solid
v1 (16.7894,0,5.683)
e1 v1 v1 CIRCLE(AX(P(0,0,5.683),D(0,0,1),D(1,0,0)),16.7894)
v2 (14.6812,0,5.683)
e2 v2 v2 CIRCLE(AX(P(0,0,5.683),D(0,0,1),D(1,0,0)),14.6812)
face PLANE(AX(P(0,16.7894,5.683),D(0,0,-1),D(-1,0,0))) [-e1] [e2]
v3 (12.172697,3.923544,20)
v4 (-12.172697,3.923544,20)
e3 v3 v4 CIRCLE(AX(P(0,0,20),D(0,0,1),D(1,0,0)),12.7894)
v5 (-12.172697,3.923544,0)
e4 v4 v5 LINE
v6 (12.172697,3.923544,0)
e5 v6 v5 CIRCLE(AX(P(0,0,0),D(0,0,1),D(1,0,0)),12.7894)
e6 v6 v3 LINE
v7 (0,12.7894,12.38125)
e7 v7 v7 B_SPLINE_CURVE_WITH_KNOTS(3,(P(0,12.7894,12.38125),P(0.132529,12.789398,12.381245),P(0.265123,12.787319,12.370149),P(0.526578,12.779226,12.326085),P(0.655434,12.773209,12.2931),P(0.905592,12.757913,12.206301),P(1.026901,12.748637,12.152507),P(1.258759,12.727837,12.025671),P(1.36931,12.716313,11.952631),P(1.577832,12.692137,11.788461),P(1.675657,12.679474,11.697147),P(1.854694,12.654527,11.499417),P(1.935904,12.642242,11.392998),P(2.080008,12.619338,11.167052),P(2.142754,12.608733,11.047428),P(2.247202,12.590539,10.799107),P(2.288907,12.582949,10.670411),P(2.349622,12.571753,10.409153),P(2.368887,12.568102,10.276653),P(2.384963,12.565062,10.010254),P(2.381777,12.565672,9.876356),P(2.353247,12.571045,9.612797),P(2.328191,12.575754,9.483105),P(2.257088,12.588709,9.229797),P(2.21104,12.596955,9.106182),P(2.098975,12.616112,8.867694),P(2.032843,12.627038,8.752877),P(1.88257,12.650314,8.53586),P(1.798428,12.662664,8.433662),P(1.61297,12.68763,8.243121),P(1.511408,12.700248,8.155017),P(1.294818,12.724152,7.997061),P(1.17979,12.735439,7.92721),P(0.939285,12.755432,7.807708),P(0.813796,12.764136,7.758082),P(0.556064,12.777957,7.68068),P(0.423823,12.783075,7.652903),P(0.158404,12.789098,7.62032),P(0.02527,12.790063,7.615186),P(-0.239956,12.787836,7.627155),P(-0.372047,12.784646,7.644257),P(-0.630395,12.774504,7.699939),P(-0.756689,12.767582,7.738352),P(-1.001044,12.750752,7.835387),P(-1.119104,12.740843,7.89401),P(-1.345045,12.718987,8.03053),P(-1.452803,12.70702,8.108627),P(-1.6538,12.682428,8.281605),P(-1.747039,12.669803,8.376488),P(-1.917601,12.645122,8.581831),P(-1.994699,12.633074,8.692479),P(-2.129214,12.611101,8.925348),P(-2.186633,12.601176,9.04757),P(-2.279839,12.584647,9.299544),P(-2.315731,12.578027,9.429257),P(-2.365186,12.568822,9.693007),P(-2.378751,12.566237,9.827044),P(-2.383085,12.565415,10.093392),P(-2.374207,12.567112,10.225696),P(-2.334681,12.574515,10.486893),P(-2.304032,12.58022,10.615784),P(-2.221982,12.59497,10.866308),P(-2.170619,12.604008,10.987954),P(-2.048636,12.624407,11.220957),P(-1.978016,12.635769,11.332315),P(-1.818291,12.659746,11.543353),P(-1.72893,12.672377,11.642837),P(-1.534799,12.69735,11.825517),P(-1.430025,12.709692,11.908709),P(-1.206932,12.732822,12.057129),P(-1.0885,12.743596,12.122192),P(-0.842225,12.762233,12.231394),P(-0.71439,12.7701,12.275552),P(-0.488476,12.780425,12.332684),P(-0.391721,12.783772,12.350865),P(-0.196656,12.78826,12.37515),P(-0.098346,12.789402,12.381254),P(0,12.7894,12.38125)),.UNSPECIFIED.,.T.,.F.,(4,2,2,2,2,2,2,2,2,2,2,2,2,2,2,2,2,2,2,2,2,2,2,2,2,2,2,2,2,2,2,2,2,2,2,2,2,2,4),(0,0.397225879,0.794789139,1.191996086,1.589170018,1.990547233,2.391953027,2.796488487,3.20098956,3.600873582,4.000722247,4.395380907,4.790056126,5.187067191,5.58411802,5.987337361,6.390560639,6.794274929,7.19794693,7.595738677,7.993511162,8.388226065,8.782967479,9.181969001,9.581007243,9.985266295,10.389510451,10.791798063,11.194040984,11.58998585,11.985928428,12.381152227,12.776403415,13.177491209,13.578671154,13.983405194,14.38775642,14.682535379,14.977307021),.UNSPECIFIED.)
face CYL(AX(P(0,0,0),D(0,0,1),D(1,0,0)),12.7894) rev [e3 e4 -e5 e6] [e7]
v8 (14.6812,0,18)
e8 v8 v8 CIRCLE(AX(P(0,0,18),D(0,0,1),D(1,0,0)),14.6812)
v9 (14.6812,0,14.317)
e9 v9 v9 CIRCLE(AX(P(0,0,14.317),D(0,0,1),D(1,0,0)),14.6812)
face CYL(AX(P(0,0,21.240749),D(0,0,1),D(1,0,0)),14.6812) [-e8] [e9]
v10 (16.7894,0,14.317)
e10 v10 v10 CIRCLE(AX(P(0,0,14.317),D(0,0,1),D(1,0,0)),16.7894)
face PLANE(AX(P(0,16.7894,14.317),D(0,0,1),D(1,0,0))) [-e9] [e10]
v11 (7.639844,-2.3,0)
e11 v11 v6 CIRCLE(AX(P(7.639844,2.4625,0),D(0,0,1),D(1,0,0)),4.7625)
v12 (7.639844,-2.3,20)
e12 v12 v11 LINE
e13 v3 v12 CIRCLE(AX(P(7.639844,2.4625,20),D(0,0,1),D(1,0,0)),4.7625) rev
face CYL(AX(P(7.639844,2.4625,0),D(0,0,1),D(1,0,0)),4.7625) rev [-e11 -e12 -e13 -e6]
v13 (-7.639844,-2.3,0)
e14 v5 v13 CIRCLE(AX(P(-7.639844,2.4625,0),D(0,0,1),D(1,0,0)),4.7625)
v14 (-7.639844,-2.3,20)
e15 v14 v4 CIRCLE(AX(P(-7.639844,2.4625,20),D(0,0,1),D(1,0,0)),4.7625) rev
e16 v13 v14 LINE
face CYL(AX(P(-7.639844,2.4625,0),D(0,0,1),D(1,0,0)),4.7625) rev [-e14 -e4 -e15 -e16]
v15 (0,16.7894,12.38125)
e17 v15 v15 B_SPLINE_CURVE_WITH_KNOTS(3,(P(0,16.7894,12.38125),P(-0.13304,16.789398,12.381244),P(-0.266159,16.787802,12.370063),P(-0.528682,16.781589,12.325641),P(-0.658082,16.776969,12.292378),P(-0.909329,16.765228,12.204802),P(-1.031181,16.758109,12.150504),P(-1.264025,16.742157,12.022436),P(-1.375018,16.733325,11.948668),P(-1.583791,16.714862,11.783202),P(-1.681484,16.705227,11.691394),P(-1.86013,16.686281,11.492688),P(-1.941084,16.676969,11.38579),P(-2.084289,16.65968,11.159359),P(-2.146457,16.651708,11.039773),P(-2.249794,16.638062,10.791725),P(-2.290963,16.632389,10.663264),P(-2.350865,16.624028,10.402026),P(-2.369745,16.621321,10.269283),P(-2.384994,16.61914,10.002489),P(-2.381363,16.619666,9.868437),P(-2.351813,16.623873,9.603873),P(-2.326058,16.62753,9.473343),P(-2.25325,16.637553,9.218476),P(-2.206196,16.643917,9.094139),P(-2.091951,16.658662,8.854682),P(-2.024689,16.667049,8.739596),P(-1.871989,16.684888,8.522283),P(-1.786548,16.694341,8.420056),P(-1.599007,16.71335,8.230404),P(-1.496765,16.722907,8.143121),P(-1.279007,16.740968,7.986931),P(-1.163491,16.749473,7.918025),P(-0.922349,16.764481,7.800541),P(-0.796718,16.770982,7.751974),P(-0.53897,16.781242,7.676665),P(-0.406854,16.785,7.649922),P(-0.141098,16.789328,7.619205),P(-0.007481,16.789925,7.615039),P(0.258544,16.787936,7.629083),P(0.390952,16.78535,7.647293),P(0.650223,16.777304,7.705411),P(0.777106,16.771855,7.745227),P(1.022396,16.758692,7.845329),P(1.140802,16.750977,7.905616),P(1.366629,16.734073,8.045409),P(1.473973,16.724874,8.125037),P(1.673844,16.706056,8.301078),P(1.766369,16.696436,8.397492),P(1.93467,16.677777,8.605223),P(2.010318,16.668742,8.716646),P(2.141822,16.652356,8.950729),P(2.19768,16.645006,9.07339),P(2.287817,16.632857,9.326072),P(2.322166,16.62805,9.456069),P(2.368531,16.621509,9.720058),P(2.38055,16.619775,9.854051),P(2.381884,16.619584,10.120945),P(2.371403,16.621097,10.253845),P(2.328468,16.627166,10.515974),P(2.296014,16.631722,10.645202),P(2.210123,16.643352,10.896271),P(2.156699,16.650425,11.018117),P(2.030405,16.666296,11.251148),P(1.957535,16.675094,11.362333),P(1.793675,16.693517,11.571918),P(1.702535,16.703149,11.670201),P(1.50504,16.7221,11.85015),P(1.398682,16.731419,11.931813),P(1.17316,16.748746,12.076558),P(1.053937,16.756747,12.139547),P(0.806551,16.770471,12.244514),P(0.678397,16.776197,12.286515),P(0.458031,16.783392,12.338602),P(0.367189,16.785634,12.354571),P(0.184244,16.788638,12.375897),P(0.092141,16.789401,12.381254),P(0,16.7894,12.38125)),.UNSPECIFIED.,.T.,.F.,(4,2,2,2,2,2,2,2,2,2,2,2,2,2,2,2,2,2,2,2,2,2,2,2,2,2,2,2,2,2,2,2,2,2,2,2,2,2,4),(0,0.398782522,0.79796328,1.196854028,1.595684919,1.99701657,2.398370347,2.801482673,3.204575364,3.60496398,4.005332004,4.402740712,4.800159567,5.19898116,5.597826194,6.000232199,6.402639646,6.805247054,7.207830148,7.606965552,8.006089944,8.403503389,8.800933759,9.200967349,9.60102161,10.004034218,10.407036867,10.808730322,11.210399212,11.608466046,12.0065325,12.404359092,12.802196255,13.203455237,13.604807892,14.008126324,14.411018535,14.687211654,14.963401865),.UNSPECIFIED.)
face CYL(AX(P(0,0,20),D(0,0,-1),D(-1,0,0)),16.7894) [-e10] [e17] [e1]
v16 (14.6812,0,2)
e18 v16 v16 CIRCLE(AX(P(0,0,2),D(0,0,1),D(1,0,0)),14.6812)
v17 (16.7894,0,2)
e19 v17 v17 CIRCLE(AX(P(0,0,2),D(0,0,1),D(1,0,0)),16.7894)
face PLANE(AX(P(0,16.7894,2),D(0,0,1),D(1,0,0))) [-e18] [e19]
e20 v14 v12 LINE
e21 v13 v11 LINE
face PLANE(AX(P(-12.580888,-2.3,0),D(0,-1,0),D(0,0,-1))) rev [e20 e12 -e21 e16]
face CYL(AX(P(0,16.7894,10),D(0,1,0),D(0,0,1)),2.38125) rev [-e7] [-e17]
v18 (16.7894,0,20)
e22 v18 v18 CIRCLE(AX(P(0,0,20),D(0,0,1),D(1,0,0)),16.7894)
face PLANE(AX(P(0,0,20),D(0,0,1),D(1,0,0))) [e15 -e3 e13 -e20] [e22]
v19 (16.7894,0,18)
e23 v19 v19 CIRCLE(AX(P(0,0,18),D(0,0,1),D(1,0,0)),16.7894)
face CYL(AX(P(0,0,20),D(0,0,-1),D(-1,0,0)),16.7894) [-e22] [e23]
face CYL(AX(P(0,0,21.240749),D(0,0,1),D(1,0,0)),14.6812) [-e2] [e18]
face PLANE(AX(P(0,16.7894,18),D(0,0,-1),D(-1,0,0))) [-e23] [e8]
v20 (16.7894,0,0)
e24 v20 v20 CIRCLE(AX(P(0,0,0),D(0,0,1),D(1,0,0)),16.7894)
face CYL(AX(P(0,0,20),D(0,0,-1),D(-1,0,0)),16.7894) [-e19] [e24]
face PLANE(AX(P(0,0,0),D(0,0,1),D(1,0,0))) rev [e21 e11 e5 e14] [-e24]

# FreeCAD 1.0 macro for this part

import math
import FreeCAD as App
import Part
import Sketcher
from FreeCAD import Vector
Q = App.Units.Quantity


def edges_at(feature, points):
    """Names of the edges that pass closest to the given points."""
    edges = feature.Shape.Edges
    near = lambda p: min(range(len(edges)), key=lambda i: edges[i].distToShape(Part.Vertex(*p))[0])
    return sorted({f"Edge{near(p) + 1}" for p in points})

doc = App.newDocument("Part")
params = doc.addObject("Spreadsheet::Sheet", "Params")
for row, (alias, value) in enumerate([
    ("sketch1_diameter", "1.322 in"),
    ("pad1_length", "20 mm"),
    ("sketch2_width", "0.083 in"),
    ("sketch2_height", "0.145 in"),
    ("groove_angle", "360 deg"),
    ("fillet_radius", "0.1875 in"),
    ("sketch4_diameter", "0.1875 in"),
    ("hole_diameter", "0.1875 in"),
    ("hole_depth", "11.5437 mm"),
], start=1):
    params.set(f"A{row}", alias)
    params.set(f"B{row}", "=" + value)
    params.setAlias(f"B{row}", alias)

body = doc.addObject("PartDesign::Body", "Body")

# Sketch on XY plane
sketch1 = body.newObject("Sketcher::SketchObject", "Sketch")
sketch1.AttachmentSupport = (doc.getObject("XY_Plane"), [""])
sketch1.MapMode = "FlatFace"
sketch1.addGeometry(Part.Circle(Vector(0, 0, 0), Vector(0, 0, 1), 17), False)
sketch1.addConstraint([
    Sketcher.Constraint("Coincident", 0, 3, -1, 1),
    Sketcher.Constraint("Diameter", 0, Q("1.322 in")),
])
sketch1.setExpression("Constraints[1]", "Params.sketch1_diameter")
pad1 = body.newObject("PartDesign::Pad", "Pad")
pad1.Profile = sketch1
pad1.setExpression("Length", "Params.pad1_length")

# Sketch on YZ plane
sketch2 = body.newObject("Sketcher::SketchObject", "Sketch001")
sketch2.AttachmentSupport = (doc.getObject("YZ_Plane"), [""])
sketch2.MapMode = "FlatFace"
sketch2.addGeometry([
    Part.LineSegment(Vector(16.8, 18, 0), Vector(14.7, 18, 0)),  # 0
    Part.LineSegment(Vector(14.7, 18, 0), Vector(14.7, 14.3, 0)),  # 1
    Part.LineSegment(Vector(14.7, 14.3, 0), Vector(16.8, 14.3, 0)),  # 2
    Part.LineSegment(Vector(16.8, 14.3, 0), Vector(16.8, 18, 0)),  # 3
    Part.LineSegment(Vector(16.8, 5.7, 0), Vector(14.7, 5.7, 0)),  # 4
    Part.LineSegment(Vector(14.7, 5.7, 0), Vector(14.7, 2, 0)),  # 5
    Part.LineSegment(Vector(14.7, 2, 0), Vector(16.8, 2, 0)),  # 6
    Part.LineSegment(Vector(16.8, 2, 0), Vector(16.8, 5.7, 0)),  # 7
], False)
sketch2.addConstraint([
    Sketcher.Constraint("Coincident", 0, 2, 1, 1),
    Sketcher.Constraint("Coincident", 1, 2, 2, 1),
    Sketcher.Constraint("Coincident", 2, 2, 3, 1),
    Sketcher.Constraint("Coincident", 3, 2, 0, 1),
    Sketcher.Constraint("Coincident", 4, 2, 5, 1),
    Sketcher.Constraint("Coincident", 5, 2, 6, 1),
    Sketcher.Constraint("Coincident", 6, 2, 7, 1),
    Sketcher.Constraint("Coincident", 7, 2, 4, 1),
    Sketcher.Constraint("Horizontal", 0),
    Sketcher.Constraint("Vertical", 1),
    Sketcher.Constraint("Horizontal", 2),
    Sketcher.Constraint("Vertical", 3),
    Sketcher.Constraint("Horizontal", 4),
    Sketcher.Constraint("Vertical", 5),
    Sketcher.Constraint("Horizontal", 6),
    Sketcher.Constraint("Vertical", 7),
    Sketcher.Constraint("Vertical", 1, 2, 4, 2),
    Sketcher.Constraint("Vertical", 3, 2, 6, 2),
    Sketcher.Constraint("Equal", 3, 5),
    Sketcher.Constraint("DistanceX", 0, 2, 0, 1, Q("0.083 in")),
    Sketcher.Constraint("DistanceY", 1, 2, 1, 1, Q("0.145 in")),
    Sketcher.Constraint("DistanceX", -1, 1, 0, 2, Q("0.578 in")),
    Sketcher.Constraint("DistanceY", -1, 1, 0, 2, 18.0),
    Sketcher.Constraint("DistanceY", -1, 1, 4, 2, 5.683),
])
sketch2.setExpression("Constraints[19]", "Params.sketch2_width")
sketch2.setExpression("Constraints[20]", "Params.sketch2_height")
groove = body.newObject("PartDesign::Groove", "Groove")
groove.Profile = sketch2
groove.ReferenceAxis = (sketch2, ["V_Axis"])
groove.setExpression("Angle", "Params.groove_angle")

# Sketch on XY plane
sketch3 = body.newObject("Sketcher::SketchObject", "Sketch002")
sketch3.AttachmentSupport = (doc.getObject("XY_Plane"), [""])
sketch3.MapMode = "FlatFace"
sketch3.AttachmentOffset = App.Placement(Vector(0, 0, 20), App.Rotation())
sketch3.addGeometry([
    Part.LineSegment(Vector(-13, -2, 0), Vector(13, -2, 0)),
    Part.ArcOfCircle(Part.Circle(Vector(0, 0, 0), Vector(0, 0, 1), 13), math.radians(-10), math.radians(190)),
], False)
sketch3.addConstraint([
    Sketcher.Constraint("Coincident", 0, 1, 1, 2),
    Sketcher.Constraint("Coincident", 1, 1, 0, 2),
    Sketcher.Constraint("Horizontal", 0),
    Sketcher.Constraint("Coincident", 1, 3, -1, 1),
    Sketcher.Constraint("Radius", 1, 12.7894),
    Sketcher.Constraint("DistanceY", 0, 1, -1, 1, 2.3),
])
pocket1 = body.newObject("PartDesign::Pocket", "Pocket")
pocket1.Profile = sketch3
pocket1.Type = "ThroughAll"
doc.recompute()

fillet = body.newObject("PartDesign::Fillet", "Fillet")
fillet.Base = (pocket1, edges_at(pocket1, [(-12.581, -2.3, 10), (12.581, -2.3, 10)]))
fillet.setExpression("Radius", "Params.fillet_radius")

# Sketch on XZ plane
sketch4 = body.newObject("Sketcher::SketchObject", "Sketch003")
sketch4.AttachmentSupport = (doc.getObject("XZ_Plane"), [""])
sketch4.MapMode = "FlatFace"
sketch4.AttachmentOffset = App.Placement(Vector(0, 0, -0.661 * 25.4), App.Rotation())
sketch4.addGeometry(Part.Circle(Vector(0, 10, 0), Vector(0, 0, 1), 2.4), False)
sketch4.addConstraint([
    Sketcher.Constraint("PointOnObject", 0, 3, -2),
    Sketcher.Constraint("Diameter", 0, Q("0.1875 in")),
    Sketcher.Constraint("DistanceY", -1, 1, 0, 3, 10.0),
])
sketch4.setExpression("Constraints[1]", "Params.sketch4_diameter")
doc.recompute()
hole = body.newObject("PartDesign::Hole", "Hole")
hole.Profile = sketch4
hole.ThreadType = "None"
hole.setExpression("Diameter", "Params.hole_diameter")
hole.DepthType = "Dimension"
hole.setExpression("Depth", "Params.hole_depth")
hole.DrillPoint = "Angled"
hole.DrillPointAngle = 118
hole.Reversed = True

doc.recompute()
